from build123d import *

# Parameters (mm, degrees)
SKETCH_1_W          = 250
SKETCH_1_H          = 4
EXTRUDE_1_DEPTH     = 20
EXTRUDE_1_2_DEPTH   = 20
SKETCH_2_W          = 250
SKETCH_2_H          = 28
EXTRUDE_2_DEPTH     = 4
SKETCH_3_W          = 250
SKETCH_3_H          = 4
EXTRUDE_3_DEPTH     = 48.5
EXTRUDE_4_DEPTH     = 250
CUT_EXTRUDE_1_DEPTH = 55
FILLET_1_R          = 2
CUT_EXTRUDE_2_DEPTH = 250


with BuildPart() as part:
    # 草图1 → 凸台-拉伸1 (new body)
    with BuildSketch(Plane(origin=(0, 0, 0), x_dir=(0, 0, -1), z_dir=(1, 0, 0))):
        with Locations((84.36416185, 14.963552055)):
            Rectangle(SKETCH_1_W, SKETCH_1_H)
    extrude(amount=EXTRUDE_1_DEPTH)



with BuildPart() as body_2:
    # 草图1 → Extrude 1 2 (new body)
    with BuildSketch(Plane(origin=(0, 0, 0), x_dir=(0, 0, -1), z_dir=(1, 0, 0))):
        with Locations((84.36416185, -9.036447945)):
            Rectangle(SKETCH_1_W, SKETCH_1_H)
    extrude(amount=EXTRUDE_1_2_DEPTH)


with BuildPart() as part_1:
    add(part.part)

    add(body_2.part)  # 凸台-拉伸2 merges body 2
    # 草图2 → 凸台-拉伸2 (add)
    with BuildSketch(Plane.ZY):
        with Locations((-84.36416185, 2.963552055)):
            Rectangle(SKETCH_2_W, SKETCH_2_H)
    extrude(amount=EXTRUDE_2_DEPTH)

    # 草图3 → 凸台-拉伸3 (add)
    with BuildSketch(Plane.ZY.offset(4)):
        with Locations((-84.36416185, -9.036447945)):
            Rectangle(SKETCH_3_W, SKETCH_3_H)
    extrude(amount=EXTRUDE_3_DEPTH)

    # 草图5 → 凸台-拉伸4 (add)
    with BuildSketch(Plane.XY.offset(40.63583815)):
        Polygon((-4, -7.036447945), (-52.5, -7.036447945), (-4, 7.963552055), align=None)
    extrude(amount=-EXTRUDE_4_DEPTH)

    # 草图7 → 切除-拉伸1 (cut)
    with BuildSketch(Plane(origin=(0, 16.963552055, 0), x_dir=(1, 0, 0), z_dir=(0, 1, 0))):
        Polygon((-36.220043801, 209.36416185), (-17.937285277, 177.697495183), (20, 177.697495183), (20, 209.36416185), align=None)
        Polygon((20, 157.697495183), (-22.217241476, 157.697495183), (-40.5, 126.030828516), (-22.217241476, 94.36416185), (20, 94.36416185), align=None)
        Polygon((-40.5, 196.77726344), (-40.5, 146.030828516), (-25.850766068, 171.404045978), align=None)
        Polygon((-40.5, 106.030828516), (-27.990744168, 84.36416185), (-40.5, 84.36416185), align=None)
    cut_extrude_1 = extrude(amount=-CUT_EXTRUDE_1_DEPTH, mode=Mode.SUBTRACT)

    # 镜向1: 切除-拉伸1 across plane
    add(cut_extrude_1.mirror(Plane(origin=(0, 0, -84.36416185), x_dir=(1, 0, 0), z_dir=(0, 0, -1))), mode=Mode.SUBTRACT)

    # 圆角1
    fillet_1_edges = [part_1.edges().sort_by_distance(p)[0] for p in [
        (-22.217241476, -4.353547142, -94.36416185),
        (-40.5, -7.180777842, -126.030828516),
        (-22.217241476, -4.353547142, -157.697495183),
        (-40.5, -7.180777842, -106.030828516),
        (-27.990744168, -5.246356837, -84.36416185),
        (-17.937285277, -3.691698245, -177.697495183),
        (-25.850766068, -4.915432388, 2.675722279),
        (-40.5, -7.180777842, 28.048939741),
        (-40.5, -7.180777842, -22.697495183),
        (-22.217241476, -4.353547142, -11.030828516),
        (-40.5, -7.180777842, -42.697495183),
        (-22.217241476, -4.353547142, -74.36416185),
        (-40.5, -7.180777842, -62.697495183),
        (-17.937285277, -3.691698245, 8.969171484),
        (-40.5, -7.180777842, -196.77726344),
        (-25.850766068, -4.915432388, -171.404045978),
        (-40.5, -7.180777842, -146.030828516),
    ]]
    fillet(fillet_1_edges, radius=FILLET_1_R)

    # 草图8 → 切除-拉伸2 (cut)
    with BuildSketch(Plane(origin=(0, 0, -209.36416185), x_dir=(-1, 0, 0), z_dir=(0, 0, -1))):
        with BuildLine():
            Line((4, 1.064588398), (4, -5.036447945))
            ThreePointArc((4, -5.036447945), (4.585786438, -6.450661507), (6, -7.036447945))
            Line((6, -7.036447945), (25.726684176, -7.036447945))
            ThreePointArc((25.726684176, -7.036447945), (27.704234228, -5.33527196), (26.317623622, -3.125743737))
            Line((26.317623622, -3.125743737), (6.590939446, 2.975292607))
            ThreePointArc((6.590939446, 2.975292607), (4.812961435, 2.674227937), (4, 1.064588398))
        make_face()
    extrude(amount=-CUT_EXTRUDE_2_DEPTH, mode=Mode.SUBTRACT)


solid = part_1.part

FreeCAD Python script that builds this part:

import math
import FreeCAD as App
import Part
import Sketcher
from FreeCAD import Vector
Q = App.Units.Quantity


def edges_at(feature, points):
    """Names of the edges that pass closest to the given points."""
    edges = feature.Shape.Edges
    near = lambda p: min(range(len(edges)), key=lambda i: edges[i].distToShape(Part.Vertex(*p))[0])
    return sorted({f"Edge{near(p) + 1}" for p in points})


def add_polygon(sketch, points):
    """Adds a closed chain of lines whose ends are joined by coincident constraints."""
    first, n = sketch.GeometryCount, len(points)
    for a, b in zip(points, points[1:] + points[:1]):
        sketch.addGeometry(Part.LineSegment(App.Vector(*a, 0), App.Vector(*b, 0)), False)
    for i in range(n):
        sketch.addConstraint(Sketcher.Constraint("Coincident", first + i, 2, first + (i + 1) % n, 1))

doc = App.newDocument("Part")
body = doc.addObject("PartDesign::Body", "Body")

# Sketch on YZ plane
sketch1 = body.newObject("Sketcher::SketchObject", "Sketch")
sketch1.AttachmentSupport = (doc.getObject("YZ_Plane"), [""])
sketch1.MapMode = "FlatFace"
add_polygon(sketch1, [(17, 40.6), (13, 40.6), (13, -209.4), (17, -209.4)])  # lines 0-3
sketch1.addConstraint(Sketcher.Constraint("Horizontal", 0))
sketch1.addConstraint(Sketcher.Constraint("Vertical", 1))
sketch1.addConstraint(Sketcher.Constraint("Horizontal", 2))
sketch1.addConstraint(Sketcher.Constraint("Vertical", 3))
sketch1.addConstraint(Sketcher.Constraint("DistanceX", 0, 2, 0, 1, Q("4 mm")))
sketch1.addConstraint(Sketcher.Constraint("DistanceY", 1, 2, 1, 1, Q("250 mm")))
sketch1.addConstraint(Sketcher.Constraint("DistanceY", -1, 1, 0, 2, Q("40.635838 mm")))
sketch1.addConstraint(Sketcher.Constraint("DistanceX", -1, 1, 0, 2, Q("12.963552 mm")))
pad1 = body.newObject("PartDesign::Pad", "Pad")
pad1.Profile = sketch1
pad1.Length = 20
body2 = doc.addObject("PartDesign::Body", "Body001")

# Sketch on YZ plane
sketch2 = body2.newObject("Sketcher::SketchObject", "Sketch001")
sketch2.AttachmentSupport = (doc.getObject("YZ_Plane001"), [""])
sketch2.MapMode = "FlatFace"
add_polygon(sketch2, [(-7, 40.6), (-11, 40.6), (-11, -209.4), (-7, -209.4)])  # lines 0-3
sketch2.addConstraint(Sketcher.Constraint("Horizontal", 0))
sketch2.addConstraint(Sketcher.Constraint("Vertical", 1))
sketch2.addConstraint(Sketcher.Constraint("Horizontal", 2))
sketch2.addConstraint(Sketcher.Constraint("Vertical", 3))
sketch2.addConstraint(Sketcher.Constraint("DistanceX", 0, 2, 0, 1, Q("4 mm")))
sketch2.addConstraint(Sketcher.Constraint("DistanceY", 1, 2, 1, 1, Q("250 mm")))
sketch2.addConstraint(Sketcher.Constraint("DistanceY", -1, 1, 0, 2, Q("40.635838 mm")))
sketch2.addConstraint(Sketcher.Constraint("DistanceX", 0, 2, -1, 1, Q("11.036448 mm")))
pad2 = body2.newObject("PartDesign::Pad", "Pad001")
pad2.Profile = sketch2
pad2.Length = 20
body.AllowCompound = True
doc.recompute()

boolean = body.newObject("PartDesign::Boolean", "Boolean")
boolean.Type = "Fuse"
boolean.addObjects([body2])

# Sketch on YZ plane
sketch3 = body.newObject("Sketcher::SketchObject", "Sketch002")
sketch3.AttachmentSupport = (doc.getObject("YZ_Plane"), [""])
sketch3.MapMode = "FlatFace"
add_polygon(sketch3, [(17, -209), (-11, -209), (-11, 41), (17, 41)])  # lines 0-3
sketch3.addConstraint(Sketcher.Constraint("Horizontal", 0))
sketch3.addConstraint(Sketcher.Constraint("Vertical", 1))
sketch3.addConstraint(Sketcher.Constraint("Horizontal", 2))
sketch3.addConstraint(Sketcher.Constraint("Vertical", 3))
sketch3.addConstraint(Sketcher.Constraint("DistanceX", 0, 2, 0, 1, Q("28 mm")))
sketch3.addConstraint(Sketcher.Constraint("DistanceY", 1, 1, 1, 2, Q("250 mm")))
sketch3.addConstraint(Sketcher.Constraint("DistanceY", 0, 2, -1, 1, Q("209.364162 mm")))
sketch3.addConstraint(Sketcher.Constraint("DistanceX", 0, 2, -1, 1, Q("11.036448 mm")))
pad3 = body.newObject("PartDesign::Pad", "Pad002")
pad3.Profile = sketch3
pad3.Length = 4
pad3.Reversed = True

# Sketch on YZ plane
sketch4 = body.newObject("Sketcher::SketchObject", "Sketch003")
sketch4.AttachmentSupport = (doc.getObject("YZ_Plane"), [""])
sketch4.MapMode = "FlatFace"
sketch4.AttachmentOffset = App.Placement(Vector(0, 0, -4), App.Rotation())
add_polygon(sketch4, [(-7, -209.4), (-11, -209.4), (-11, 40.6), (-7, 40.6)])  # lines 0-3
sketch4.addConstraint(Sketcher.Constraint("Horizontal", 0))
sketch4.addConstraint(Sketcher.Constraint("Vertical", 1))
sketch4.addConstraint(Sketcher.Constraint("Horizontal", 2))
sketch4.addConstraint(Sketcher.Constraint("Vertical", 3))
sketch4.addConstraint(Sketcher.Constraint("DistanceX", 0, 2, 0, 1, Q("4 mm")))
sketch4.addConstraint(Sketcher.Constraint("DistanceY", 1, 1, 1, 2, Q("250 mm")))
sketch4.addConstraint(Sketcher.Constraint("DistanceY", 0, 2, -1, 1, Q("209.364162 mm")))
sketch4.addConstraint(Sketcher.Constraint("DistanceX", 0, 2, -1, 1, Q("11.036448 mm")))
pad4 = body.newObject("PartDesign::Pad", "Pad003")
pad4.Profile = sketch4
pad4.Length = 48.5
pad4.Reversed = True

# Sketch on XY plane
sketch5 = body.newObject("Sketcher::SketchObject", "Sketch004")
sketch5.AttachmentSupport = (doc.getObject("XY_Plane"), [""])
sketch5.MapMode = "FlatFace"
sketch5.AttachmentOffset = App.Placement(Vector(0, 0, 40.635838), App.Rotation())
add_polygon(sketch5, [(-52, -7), (-4, -7), (-4, 8)])  # lines 0-2
sketch5.addConstraint(Sketcher.Constraint("Horizontal", 0))
sketch5.addConstraint(Sketcher.Constraint("Vertical", 1))
sketch5.addConstraint(Sketcher.Constraint("DistanceY", 1, 1, 1, 2, Q("15 mm")))
sketch5.addConstraint(Sketcher.Constraint("DistanceX", 0, 1, 0, 2, Q("48.5 mm")))
sketch5.addConstraint(Sketcher.Constraint("DistanceX", 0, 2, -1, 1, Q("4 mm")))
sketch5.addConstraint(Sketcher.Constraint("DistanceY", 0, 2, -1, 1, Q("7.036448 mm")))
pad5 = body.newObject("PartDesign::Pad", "Pad004")
pad5.Profile = sketch5
pad5.Length = 250
pad5.Reversed = True

# Sketch on XZ plane
sketch6 = body.newObject("Sketcher::SketchObject", "Sketch005")
sketch6.AttachmentSupport = (doc.getObject("XZ_Plane"), [""])
sketch6.MapMode = "FlatFace"
sketch6.AttachmentOffset = App.Placement(Vector(0, 0, -16.963552), App.Rotation())
add_polygon(sketch6, [(-36, -209), (-18, -178), (20, -178), (20, -209)])  # lines 0-3
add_polygon(sketch6, [(20, -158), (-22, -158), (-40, -126), (-22, -94), (20, -94)])  # lines 4-8
add_polygon(sketch6, [(-40, -197), (-40, -146), (-26, -171)])  # lines 9-11
add_polygon(sketch6, [(-28, -84), (-40, -106), (-40, -84)])  # lines 12-14
sketch6.addConstraint(Sketcher.Constraint("Horizontal", 1))
sketch6.addConstraint(Sketcher.Constraint("Vertical", 2))
sketch6.addConstraint(Sketcher.Constraint("Horizontal", 3))
sketch6.addConstraint(Sketcher.Constraint("Horizontal", 4))
sketch6.addConstraint(Sketcher.Constraint("Horizontal", 7))
sketch6.addConstraint(Sketcher.Constraint("Vertical", 8))
sketch6.addConstraint(Sketcher.Constraint("Vertical", 9))
sketch6.addConstraint(Sketcher.Constraint("Vertical", 13))
sketch6.addConstraint(Sketcher.Constraint("Horizontal", 14))
sketch6.addConstraint(Sketcher.Constraint("Parallel", 0, 6))
sketch6.addConstraint(Sketcher.Constraint("Parallel", 5, 10))
sketch6.addConstraint(Sketcher.Constraint("Parallel", 6, 11))
sketch6.addConstraint(Sketcher.Constraint("Parallel", 11, 12))
sketch6.addConstraint(Sketcher.Constraint("Vertical", 4, 2, 6, 2))
sketch6.addConstraint(Sketcher.Constraint("Vertical", 2, 2, 7, 2))
sketch6.addConstraint(Sketcher.Constraint("Vertical", 5, 2, 9, 2))
sketch6.addConstraint(Sketcher.Constraint("Vertical", 11, 2, 12, 2))
sketch6.addConstraint(Sketcher.Constraint("Equal", 0, 5))
sketch6.addConstraint(Sketcher.Constraint("Equal", 5, 6))
sketch6.addConstraint(Sketcher.Constraint("Angle", 0, Q("60 deg")))
sketch6.addConstraint(Sketcher.Constraint("DistanceX", -1, 1, 1, 2, Q("20 mm")))
sketch6.addConstraint(Sketcher.Constraint("DistanceY", 0, 2, 4, 2, Q("20 mm")))
sketch6.addConstraint(Sketcher.Constraint("DistanceY", 3, 2, 6, 2, Q("115 mm")))
sketch6.addConstraint(Sketcher.Constraint("DistanceY", 9, 2, 5, 2, Q("20 mm")))
sketch6.addConstraint(Sketcher.Constraint("DistanceY", 5, 2, 12, 2, Q("20 mm")))
sketch6.addConstraint(Sketcher.Constraint("DistanceY", 6, 2, 13, 2, Q("10 mm")))
sketch6.addConstraint(Sketcher.Constraint("DistanceX", 5, 2, -1, 1, Q("40.5 mm")))
sketch6.addConstraint(Sketcher.Constraint("DistanceY", 3, 2, 11, 2, Q("12.586898 mm")))
sketch6.addConstraint(Sketcher.Constraint("DistanceX", 1, 1, 1, 2, Q("37.937285 mm")))
sketch6.addConstraint(Sketcher.Constraint("DistanceY", 2, 2, -1, 1, Q("209.364162 mm")))
pocket1 = body.newObject("PartDesign::Pocket", "Pocket")
pocket1.Profile = sketch6
pocket1.Length = 55
pocket1.Reversed = True
doc.recompute()

datumplane = body.newObject("PartDesign::Plane", "DatumPlane")
datumplane.AttachmentSupport = (doc.getObject("XY_Plane"), [""])
datumplane.MapMode = "FlatFace"
datumplane.AttachmentOffset = App.Placement(Vector(0, 0, -84.364162), App.Rotation())
mirrored = body.newObject("PartDesign::Mirrored", "Mirrored")
mirrored.Originals = [pocket1]
mirrored.MirrorPlane = (datumplane, [""])
body.Tip = mirrored
doc.recompute()

fillet = body.newObject("PartDesign::Fillet", "Fillet")
fillet.Base = (mirrored, edges_at(mirrored, [
    (-22.217, -4.354, -94.364),
    (-40.5, -7.181, -126.031),
    (-22.217, -4.354, -157.697),
    (-40.5, -7.181, -106.031),
    (-27.991, -5.246, -84.364),
    (-17.937, -3.692, -177.697),
    (-25.851, -4.915, 2.676),
    (-40.5, -7.181, 28.049),
    (-40.5, -7.181, -22.697),
    (-22.217, -4.354, -11.031),
    (-40.5, -7.181, -42.697),
    (-22.217, -4.354, -74.364),
    (-40.5, -7.181, -62.697),
    (-17.937, -3.692, 8.969),
    (-40.5, -7.181, -196.777),
    (-25.851, -4.915, -171.404),
    (-40.5, -7.181, -146.031),
]))
fillet.Radius = 2

# Sketch on XY plane
sketch7 = body.newObject("Sketcher::SketchObject", "Sketch006")
sketch7.AttachmentSupport = (doc.getObject("XY_Plane"), [""])
sketch7.MapMode = "FlatFace"
sketch7.AttachmentOffset = App.Placement(Vector(0, 0, -209.364162), App.Rotation())
sketch7.addGeometry(Part.LineSegment(Vector(-4, 1.1, 0), Vector(-4, -5, 0)), False)
sketch7.addGeometry(Part.ArcOfCircle(Part.Circle(Vector(-6, -5, 0), Vector(0, 0, 1), 2), math.radians(-90), math.radians(0)), False)
sketch7.addGeometry(Part.LineSegment(Vector(-6, -7, 0), Vector(-25.7, -7, 0)), False)
sketch7.addGeometry(Part.ArcOfCircle(Part.Circle(Vector(-25.7, -5, 0), Vector(0, 0, 1), 2), math.radians(107), math.radians(270)), False)
sketch7.addGeometry(Part.LineSegment(Vector(-26.3, -3.1, 0), Vector(-6.6, 3, 0)), False)
sketch7.addGeometry(Part.ArcOfCircle(Part.Circle(Vector(-6, 1.1, 0), Vector(0, 0, 1), 2), math.radians(0), math.radians(107)), False)
sketch7.addConstraint(Sketcher.Constraint("Tangent", 0, 2, 1, 2))
sketch7.addConstraint(Sketcher.Constraint("Tangent", 1, 1, 2, 1))
sketch7.addConstraint(Sketcher.Constraint("Tangent", 2, 2, 3, 2))
sketch7.addConstraint(Sketcher.Constraint("Tangent", 3, 1, 4, 1))
sketch7.addConstraint(Sketcher.Constraint("Tangent", 4, 2, 5, 2))
sketch7.addConstraint(Sketcher.Constraint("Tangent", 5, 1, 0, 1))
sketch7.addConstraint(Sketcher.Constraint("Vertical", 0))
sketch7.addConstraint(Sketcher.Constraint("Horizontal", 2))
sketch7.addConstraint(Sketcher.Constraint("Equal", 1, 3))
sketch7.addConstraint(Sketcher.Constraint("Equal", 3, 5))
sketch7.addConstraint(Sketcher.Constraint("Radius", 1, Q("2 mm")))
sketch7.addConstraint(Sketcher.Constraint("DistanceX", 1, 3, -1, 1, Q("6 mm")))
sketch7.addConstraint(Sketcher.Constraint("Distance", 4, Q("20.648601 mm")))
sketch7.addConstraint(Sketcher.Constraint("DistanceX", 2, 2, 2, 1, Q("19.726684 mm")))
sketch7.addConstraint(Sketcher.Constraint("DistanceY", -1, 1, 5, 3, Q("1.064588 mm")))
pocket2 = body.newObject("PartDesign::Pocket", "Pocket001")
pocket2.Profile = sketch7
pocket2.Length = 250
pocket2.Reversed = True

doc.recompute()
